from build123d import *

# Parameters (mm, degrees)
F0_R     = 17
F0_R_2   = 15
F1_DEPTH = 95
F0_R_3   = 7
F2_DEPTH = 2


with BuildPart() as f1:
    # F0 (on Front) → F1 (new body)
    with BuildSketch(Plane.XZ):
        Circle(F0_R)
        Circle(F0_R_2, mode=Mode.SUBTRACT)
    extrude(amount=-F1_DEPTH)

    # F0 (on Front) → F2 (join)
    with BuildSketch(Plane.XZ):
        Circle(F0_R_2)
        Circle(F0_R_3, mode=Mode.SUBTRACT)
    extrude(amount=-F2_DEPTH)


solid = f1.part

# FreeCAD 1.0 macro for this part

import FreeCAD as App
import Part
import Sketcher
from FreeCAD import Vector
Q = App.Units.Quantity

doc = App.newDocument("Part")
body = doc.addObject("PartDesign::Body", "Body")

sketch1 = body.newObject("Sketcher::SketchObject", "Sketch")
sketch1.AttachmentSupport = (doc.getObject("XZ_Plane"), [""])
sketch1.MapMode = "FlatFace"
sketch1.addGeometry([
    Part.Circle(Vector(0, 0, 0), Vector(0, 0, 1), 17),
    Part.Circle(Vector(0, 0, 0), Vector(0, 0, 1), 15),
], False)
sketch1.addConstraint([
    Sketcher.Constraint("Coincident", 0, 3, -1, 1),
    Sketcher.Constraint("Coincident", 1, 3, -1, 1),
    Sketcher.Constraint("Diameter", 0, Q("34 mm")),
    Sketcher.Constraint("Diameter", 1, Q("30 mm")),
])
pad1 = body.newObject("PartDesign::Pad", "Pad")
pad1.Profile = sketch1
pad1.Length = 95
pad1.Reversed = True

sketch2 = body.newObject("Sketcher::SketchObject", "Sketch001")
sketch2.AttachmentSupport = (doc.getObject("XZ_Plane"), [""])
sketch2.MapMode = "FlatFace"
sketch2.addGeometry([
    Part.Circle(Vector(0, 0, 0), Vector(0, 0, 1), 15),
    Part.Circle(Vector(0, 0, 0), Vector(0, 0, 1), 7),
], False)
sketch2.addConstraint([
    Sketcher.Constraint("Coincident", 0, 3, -1, 1),
    Sketcher.Constraint("Coincident", 1, 3, -1, 1),
    Sketcher.Constraint("Diameter", 0, Q("30 mm")),
    Sketcher.Constraint("Diameter", 1, Q("14 mm")),
])
pad2 = body.newObject("PartDesign::Pad", "Pad001")
pad2.Profile = sketch2
pad2.Length = 2
pad2.Reversed = True

doc.recompute()
